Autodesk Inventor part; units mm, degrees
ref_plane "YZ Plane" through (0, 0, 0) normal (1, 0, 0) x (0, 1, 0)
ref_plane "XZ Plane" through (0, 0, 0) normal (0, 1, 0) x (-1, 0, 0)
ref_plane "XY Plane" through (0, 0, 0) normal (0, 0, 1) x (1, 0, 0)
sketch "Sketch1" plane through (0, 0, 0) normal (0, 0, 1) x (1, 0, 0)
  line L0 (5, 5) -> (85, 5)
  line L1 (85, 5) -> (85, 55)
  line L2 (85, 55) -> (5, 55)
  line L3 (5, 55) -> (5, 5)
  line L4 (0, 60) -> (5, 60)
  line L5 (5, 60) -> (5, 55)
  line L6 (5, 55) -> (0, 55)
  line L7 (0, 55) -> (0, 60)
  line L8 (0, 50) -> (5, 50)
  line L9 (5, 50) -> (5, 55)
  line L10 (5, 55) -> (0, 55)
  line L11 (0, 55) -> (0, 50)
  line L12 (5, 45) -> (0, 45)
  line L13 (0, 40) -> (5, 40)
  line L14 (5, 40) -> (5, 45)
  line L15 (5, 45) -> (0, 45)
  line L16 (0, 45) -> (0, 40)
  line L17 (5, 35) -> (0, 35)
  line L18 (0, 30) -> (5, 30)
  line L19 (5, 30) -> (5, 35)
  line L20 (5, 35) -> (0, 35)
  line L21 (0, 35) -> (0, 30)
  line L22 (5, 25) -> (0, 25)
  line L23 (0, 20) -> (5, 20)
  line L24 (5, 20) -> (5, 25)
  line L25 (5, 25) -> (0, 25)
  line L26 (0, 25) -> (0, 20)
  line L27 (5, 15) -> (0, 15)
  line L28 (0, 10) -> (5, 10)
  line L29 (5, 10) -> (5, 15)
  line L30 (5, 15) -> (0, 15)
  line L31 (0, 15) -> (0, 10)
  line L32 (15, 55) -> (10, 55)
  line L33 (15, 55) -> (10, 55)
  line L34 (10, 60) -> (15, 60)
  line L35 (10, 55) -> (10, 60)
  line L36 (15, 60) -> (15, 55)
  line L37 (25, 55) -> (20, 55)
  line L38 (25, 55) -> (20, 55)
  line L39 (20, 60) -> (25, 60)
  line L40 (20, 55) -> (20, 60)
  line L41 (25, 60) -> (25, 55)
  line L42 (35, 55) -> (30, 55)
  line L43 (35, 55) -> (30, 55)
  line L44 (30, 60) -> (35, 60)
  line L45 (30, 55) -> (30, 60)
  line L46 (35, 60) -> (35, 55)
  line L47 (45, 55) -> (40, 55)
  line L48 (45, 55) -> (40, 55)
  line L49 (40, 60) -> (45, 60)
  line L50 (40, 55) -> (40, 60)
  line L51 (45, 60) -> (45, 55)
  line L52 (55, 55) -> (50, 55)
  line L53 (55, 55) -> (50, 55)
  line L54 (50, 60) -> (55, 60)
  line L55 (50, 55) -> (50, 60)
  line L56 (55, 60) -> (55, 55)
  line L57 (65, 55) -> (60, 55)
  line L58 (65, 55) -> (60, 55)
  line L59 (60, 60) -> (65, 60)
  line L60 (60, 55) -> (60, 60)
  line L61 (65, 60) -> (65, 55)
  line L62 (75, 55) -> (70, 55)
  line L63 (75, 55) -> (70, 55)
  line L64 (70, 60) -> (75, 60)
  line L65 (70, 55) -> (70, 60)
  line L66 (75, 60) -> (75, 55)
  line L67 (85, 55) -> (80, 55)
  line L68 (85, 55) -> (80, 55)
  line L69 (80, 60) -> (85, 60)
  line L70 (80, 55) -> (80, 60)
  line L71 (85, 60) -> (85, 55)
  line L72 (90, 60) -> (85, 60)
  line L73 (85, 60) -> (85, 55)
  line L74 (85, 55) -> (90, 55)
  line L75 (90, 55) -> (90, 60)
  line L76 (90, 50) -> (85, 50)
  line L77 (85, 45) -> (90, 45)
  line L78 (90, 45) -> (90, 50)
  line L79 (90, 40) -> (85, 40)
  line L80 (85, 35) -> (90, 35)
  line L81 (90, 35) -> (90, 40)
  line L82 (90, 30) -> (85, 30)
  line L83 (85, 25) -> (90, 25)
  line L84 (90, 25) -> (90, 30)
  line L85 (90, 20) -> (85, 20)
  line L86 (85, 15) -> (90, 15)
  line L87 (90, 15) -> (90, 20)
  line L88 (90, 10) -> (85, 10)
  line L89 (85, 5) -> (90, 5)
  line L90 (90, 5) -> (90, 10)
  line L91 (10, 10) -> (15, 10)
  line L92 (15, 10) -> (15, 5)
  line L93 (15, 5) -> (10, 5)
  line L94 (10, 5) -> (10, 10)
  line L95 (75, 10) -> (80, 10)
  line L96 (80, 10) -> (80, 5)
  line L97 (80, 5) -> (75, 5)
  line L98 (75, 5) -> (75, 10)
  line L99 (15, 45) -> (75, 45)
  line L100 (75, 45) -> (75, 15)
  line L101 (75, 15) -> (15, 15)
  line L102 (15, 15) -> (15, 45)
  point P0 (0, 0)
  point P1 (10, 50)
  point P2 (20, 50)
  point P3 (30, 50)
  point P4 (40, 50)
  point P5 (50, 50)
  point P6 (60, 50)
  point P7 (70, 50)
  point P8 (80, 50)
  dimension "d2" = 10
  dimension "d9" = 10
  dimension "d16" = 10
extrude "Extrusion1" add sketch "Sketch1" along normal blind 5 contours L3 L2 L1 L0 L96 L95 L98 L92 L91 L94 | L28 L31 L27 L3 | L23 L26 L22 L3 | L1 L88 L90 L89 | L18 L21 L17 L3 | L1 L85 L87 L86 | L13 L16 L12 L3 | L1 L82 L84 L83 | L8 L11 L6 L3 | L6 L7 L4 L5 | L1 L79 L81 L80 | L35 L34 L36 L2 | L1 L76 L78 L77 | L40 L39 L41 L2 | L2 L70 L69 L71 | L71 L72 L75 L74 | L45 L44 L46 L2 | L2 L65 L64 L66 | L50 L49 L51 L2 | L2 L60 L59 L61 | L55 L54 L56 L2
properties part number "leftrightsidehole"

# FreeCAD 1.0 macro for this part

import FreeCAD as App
import Part
import Sketcher
from FreeCAD import Vector


def add_polygon(sketch, points):
    """Adds a closed chain of lines whose ends are joined by coincident constraints."""
    first, n = sketch.GeometryCount, len(points)
    for a, b in zip(points, points[1:] + points[:1]):
        sketch.addGeometry(Part.LineSegment(App.Vector(*a, 0), App.Vector(*b, 0)), False)
    for i in range(n):
        sketch.addConstraint(Sketcher.Constraint("Coincident", first + i, 2, first + (i + 1) % n, 1))

doc = App.newDocument("Part")
body = doc.addObject("PartDesign::Body", "Body")

sketch1 = body.newObject("Sketcher::SketchObject", "Sketch")
sketch1.AttachmentSupport = (doc.getObject("XY_Plane"), [""])
sketch1.MapMode = "FlatFace"
add_polygon(sketch1, [(5, 10), (5, 5), (10, 5), (10, 10), (15, 10), (15, 5), (75, 5), (75, 10), (80, 10), (80, 5), (90, 5), (90, 10), (85, 10), (85, 15), (90, 15), (90, 20), (85, 20), (85, 25), (90, 25), (90, 30), (85, 30), (85, 35), (90, 35), (90, 40), (85, 40), (85, 45), (90, 45), (90, 50), (85, 50), (85, 55), (90, 55), (90, 60), (80, 60), (80, 55), (75, 55), (75, 60), (70, 60), (70, 55), (65, 55), (65, 60), (60, 60), (60, 55), (55, 55), (55, 60), (50, 60), (50, 55), (45, 55), (45, 60), (40, 60), (40, 55), (35, 55), (35, 60), (30, 60), (30, 55), (25, 55), (25, 60), (20, 60), (20, 55), (15, 55), (15, 60), (10, 60), (10, 55), (5, 55), (5, 60), (0, 60), (0, 50), (5, 50), (5, 45), (0, 45), (0, 40), (5, 40), (5, 35), (0, 35), (0, 30), (5, 30), (5, 25), (0, 25), (0, 20), (5, 20), (5, 15), (0, 15), (0, 10)])
add_polygon(sketch1, [(15, 15), (15, 45), (75, 45), (75, 15)])
sketch1.addConstraint(Sketcher.Constraint("Vertical", 0))
sketch1.addConstraint(Sketcher.Constraint("Horizontal", 1))
sketch1.addConstraint(Sketcher.Constraint("Vertical", 2))
sketch1.addConstraint(Sketcher.Constraint("Horizontal", 3))
sketch1.addConstraint(Sketcher.Constraint("Vertical", 4))
sketch1.addConstraint(Sketcher.Constraint("Horizontal", 5))
sketch1.addConstraint(Sketcher.Constraint("Vertical", 6))
sketch1.addConstraint(Sketcher.Constraint("Horizontal", 7))
sketch1.addConstraint(Sketcher.Constraint("Vertical", 8))
sketch1.addConstraint(Sketcher.Constraint("Horizontal", 9))
sketch1.addConstraint(Sketcher.Constraint("Vertical", 10))
sketch1.addConstraint(Sketcher.Constraint("Horizontal", 11))
sketch1.addConstraint(Sketcher.Constraint("Vertical", 12))
sketch1.addConstraint(Sketcher.Constraint("Horizontal", 13))
sketch1.addConstraint(Sketcher.Constraint("Vertical", 14))
sketch1.addConstraint(Sketcher.Constraint("Horizontal", 15))
sketch1.addConstraint(Sketcher.Constraint("Vertical", 16))
sketch1.addConstraint(Sketcher.Constraint("Horizontal", 17))
sketch1.addConstraint(Sketcher.Constraint("Vertical", 18))
sketch1.addConstraint(Sketcher.Constraint("Horizontal", 19))
sketch1.addConstraint(Sketcher.Constraint("Vertical", 20))
sketch1.addConstraint(Sketcher.Constraint("Horizontal", 21))
sketch1.addConstraint(Sketcher.Constraint("Vertical", 22))
sketch1.addConstraint(Sketcher.Constraint("Horizontal", 23))
sketch1.addConstraint(Sketcher.Constraint("Vertical", 24))
sketch1.addConstraint(Sketcher.Constraint("Horizontal", 25))
sketch1.addConstraint(Sketcher.Constraint("Vertical", 26))
sketch1.addConstraint(Sketcher.Constraint("Horizontal", 27))
sketch1.addConstraint(Sketcher.Constraint("Vertical", 28))
sketch1.addConstraint(Sketcher.Constraint("Horizontal", 29))
sketch1.addConstraint(Sketcher.Constraint("Vertical", 30))
sketch1.addConstraint(Sketcher.Constraint("Horizontal", 31))
sketch1.addConstraint(Sketcher.Constraint("Vertical", 32))
sketch1.addConstraint(Sketcher.Constraint("Horizontal", 33))
sketch1.addConstraint(Sketcher.Constraint("Vertical", 34))
sketch1.addConstraint(Sketcher.Constraint("Horizontal", 35))
sketch1.addConstraint(Sketcher.Constraint("Vertical", 36))
sketch1.addConstraint(Sketcher.Constraint("Horizontal", 37))
sketch1.addConstraint(Sketcher.Constraint("Vertical", 38))
sketch1.addConstraint(Sketcher.Constraint("Horizontal", 39))
sketch1.addConstraint(Sketcher.Constraint("Vertical", 40))
sketch1.addConstraint(Sketcher.Constraint("Horizontal", 41))
sketch1.addConstraint(Sketcher.Constraint("Vertical", 42))
sketch1.addConstraint(Sketcher.Constraint("Horizontal", 43))
sketch1.addConstraint(Sketcher.Constraint("Vertical", 44))
sketch1.addConstraint(Sketcher.Constraint("Horizontal", 45))
sketch1.addConstraint(Sketcher.Constraint("Vertical", 46))
sketch1.addConstraint(Sketcher.Constraint("Horizontal", 47))
sketch1.addConstraint(Sketcher.Constraint("Vertical", 48))
sketch1.addConstraint(Sketcher.Constraint("Horizontal", 49))
sketch1.addConstraint(Sketcher.Constraint("Vertical", 50))
sketch1.addConstraint(Sketcher.Constraint("Horizontal", 51))
sketch1.addConstraint(Sketcher.Constraint("Vertical", 52))
sketch1.addConstraint(Sketcher.Constraint("Horizontal", 53))
sketch1.addConstraint(Sketcher.Constraint("Vertical", 54))
sketch1.addConstraint(Sketcher.Constraint("Horizontal", 55))
sketch1.addConstraint(Sketcher.Constraint("Vertical", 56))
sketch1.addConstraint(Sketcher.Constraint("Horizontal", 57))
sketch1.addConstraint(Sketcher.Constraint("Vertical", 58))
sketch1.addConstraint(Sketcher.Constraint("Horizontal", 59))
sketch1.addConstraint(Sketcher.Constraint("Vertical", 60))
sketch1.addConstraint(Sketcher.Constraint("Horizontal", 61))
sketch1.addConstraint(Sketcher.Constraint("Vertical", 62))
sketch1.addConstraint(Sketcher.Constraint("Horizontal", 63))
sketch1.addConstraint(Sketcher.Constraint("Vertical", 64))
sketch1.addConstraint(Sketcher.Constraint("Horizontal", 65))
sketch1.addConstraint(Sketcher.Constraint("Vertical", 66))
sketch1.addConstraint(Sketcher.Constraint("Horizontal", 67))
sketch1.addConstraint(Sketcher.Constraint("Vertical", 68))
sketch1.addConstraint(Sketcher.Constraint("Horizontal", 69))
sketch1.addConstraint(Sketcher.Constraint("Vertical", 70))
sketch1.addConstraint(Sketcher.Constraint("Horizontal", 71))
sketch1.addConstraint(Sketcher.Constraint("Vertical", 72))
sketch1.addConstraint(Sketcher.Constraint("Horizontal", 73))
sketch1.addConstraint(Sketcher.Constraint("Vertical", 74))
sketch1.addConstraint(Sketcher.Constraint("Horizontal", 75))
sketch1.addConstraint(Sketcher.Constraint("Vertical", 76))
sketch1.addConstraint(Sketcher.Constraint("Horizontal", 77))
sketch1.addConstraint(Sketcher.Constraint("Vertical", 78))
sketch1.addConstraint(Sketcher.Constraint("Horizontal", 79))
sketch1.addConstraint(Sketcher.Constraint("Vertical", 80))
sketch1.addConstraint(Sketcher.Constraint("Horizontal", 81))
sketch1.addConstraint(Sketcher.Constraint("Vertical", 82))
sketch1.addConstraint(Sketcher.Constraint("Horizontal", 83))
sketch1.addConstraint(Sketcher.Constraint("Vertical", 84))
sketch1.addConstraint(Sketcher.Constraint("Horizontal", 85))
sketch1.addConstraint(Sketcher.Constraint("PointOnObject", 63, 2, -2))
sketch1.addConstraint(Sketcher.Constraint("PointOnObject", 67, 2, -2))
sketch1.addConstraint(Sketcher.Constraint("PointOnObject", 71, 2, -2))
sketch1.addConstraint(Sketcher.Constraint("PointOnObject", 75, 2, -2))
sketch1.addConstraint(Sketcher.Constraint("PointOnObject", 79, 2, -2))
sketch1.addConstraint(Sketcher.Constraint("Horizontal", 1, 2, 4, 2))
sketch1.addConstraint(Sketcher.Constraint("Horizontal", 3, 2, 6, 2))
sketch1.addConstraint(Sketcher.Constraint("Horizontal", 5, 2, 8, 2))
sketch1.addConstraint(Sketcher.Constraint("Horizontal", 7, 2, 10, 2))
sketch1.addConstraint(Sketcher.Constraint("Horizontal", 29, 2, 32, 2))
sketch1.addConstraint(Sketcher.Constraint("Horizontal", 31, 2, 34, 2))
sketch1.addConstraint(Sketcher.Constraint("Horizontal", 33, 2, 36, 2))
sketch1.addConstraint(Sketcher.Constraint("Horizontal", 35, 2, 38, 2))
sketch1.addConstraint(Sketcher.Constraint("Horizontal", 37, 2, 40, 2))
sketch1.addConstraint(Sketcher.Constraint("Horizontal", 39, 2, 42, 2))
sketch1.addConstraint(Sketcher.Constraint("Horizontal", 41, 2, 44, 2))
sketch1.addConstraint(Sketcher.Constraint("Horizontal", 43, 2, 46, 2))
sketch1.addConstraint(Sketcher.Constraint("Horizontal", 45, 2, 48, 2))
sketch1.addConstraint(Sketcher.Constraint("Horizontal", 47, 2, 50, 2))
sketch1.addConstraint(Sketcher.Constraint("Horizontal", 49, 2, 52, 2))
sketch1.addConstraint(Sketcher.Constraint("Horizontal", 51, 2, 54, 2))
sketch1.addConstraint(Sketcher.Constraint("Horizontal", 53, 2, 56, 2))
sketch1.addConstraint(Sketcher.Constraint("Horizontal", 55, 2, 58, 2))
sketch1.addConstraint(Sketcher.Constraint("Horizontal", 57, 2, 60, 2))
sketch1.addConstraint(Sketcher.Constraint("Horizontal", 59, 2, 62, 2))
sketch1.addConstraint(Sketcher.Constraint("Horizontal", 27, 2, 64, 2))
sketch1.addConstraint(Sketcher.Constraint("Horizontal", 25, 2, 66, 2))
sketch1.addConstraint(Sketcher.Constraint("Horizontal", 23, 2, 68, 2))
sketch1.addConstraint(Sketcher.Constraint("Horizontal", 21, 2, 70, 2))
sketch1.addConstraint(Sketcher.Constraint("Horizontal", 19, 2, 72, 2))
sketch1.addConstraint(Sketcher.Constraint("Horizontal", 17, 2, 74, 2))
sketch1.addConstraint(Sketcher.Constraint("Horizontal", 15, 2, 76, 2))
sketch1.addConstraint(Sketcher.Constraint("Horizontal", 13, 2, 78, 2))
sketch1.addConstraint(Sketcher.Constraint("Horizontal", 11, 2, 80, 2))
sketch1.addConstraint(Sketcher.Constraint("Horizontal", 67, 2, 82, 2))
sketch1.addConstraint(Sketcher.Constraint("Horizontal", 79, 2, 84, 2))
sketch1.addConstraint(Sketcher.Constraint("Vertical", 10, 2, 13, 2))
sketch1.addConstraint(Sketcher.Constraint("Vertical", 12, 2, 15, 2))
sketch1.addConstraint(Sketcher.Constraint("Vertical", 14, 2, 17, 2))
sketch1.addConstraint(Sketcher.Constraint("Vertical", 16, 2, 19, 2))
sketch1.addConstraint(Sketcher.Constraint("Vertical", 18, 2, 21, 2))
sketch1.addConstraint(Sketcher.Constraint("Vertical", 20, 2, 23, 2))
sketch1.addConstraint(Sketcher.Constraint("Vertical", 22, 2, 25, 2))
sketch1.addConstraint(Sketcher.Constraint("Vertical", 24, 2, 27, 2))
sketch1.addConstraint(Sketcher.Constraint("Vertical", 26, 2, 29, 2))
sketch1.addConstraint(Sketcher.Constraint("Vertical", 8, 2, 31, 2))
sketch1.addConstraint(Sketcher.Constraint("Vertical", 6, 2, 33, 2))
sketch1.addConstraint(Sketcher.Constraint("Vertical", 4, 2, 57, 2))
sketch1.addConstraint(Sketcher.Constraint("Vertical", 2, 2, 59, 2))
sketch1.addConstraint(Sketcher.Constraint("Vertical", 0, 2, 61, 2))
sketch1.addConstraint(Sketcher.Constraint("Vertical", 62, 2, 65, 2))
sketch1.addConstraint(Sketcher.Constraint("Vertical", 66, 2, 69, 2))
sketch1.addConstraint(Sketcher.Constraint("Vertical", 70, 2, 73, 2))
sketch1.addConstraint(Sketcher.Constraint("Vertical", 74, 2, 77, 2))
sketch1.addConstraint(Sketcher.Constraint("Vertical", 58, 2, 82, 2))
sketch1.addConstraint(Sketcher.Constraint("Vertical", 34, 2, 83, 2))
sketch1.addConstraint(Sketcher.Constraint("Equal", 1, 3))
sketch1.addConstraint(Sketcher.Constraint("Equal", 3, 7))
sketch1.addConstraint(Sketcher.Constraint("Equal", 7, 11))
sketch1.addConstraint(Sketcher.Constraint("Equal", 33, 35))
sketch1.addConstraint(Sketcher.Constraint("Equal", 35, 37))
sketch1.addConstraint(Sketcher.Constraint("Equal", 37, 39))
sketch1.addConstraint(Sketcher.Constraint("Equal", 39, 41))
sketch1.addConstraint(Sketcher.Constraint("Equal", 41, 43))
sketch1.addConstraint(Sketcher.Constraint("Equal", 43, 45))
sketch1.addConstraint(Sketcher.Constraint("Equal", 45, 47))
sketch1.addConstraint(Sketcher.Constraint("Equal", 47, 49))
sketch1.addConstraint(Sketcher.Constraint("Equal", 49, 51))
sketch1.addConstraint(Sketcher.Constraint("Equal", 51, 53))
sketch1.addConstraint(Sketcher.Constraint("Equal", 53, 55))
sketch1.addConstraint(Sketcher.Constraint("Equal", 55, 57))
sketch1.addConstraint(Sketcher.Constraint("Equal", 61, 63))
sketch1.addConstraint(Sketcher.Constraint("Equal", 81, 0))
sketch1.addConstraint(Sketcher.Constraint("Equal", 10, 12))
sketch1.addConstraint(Sketcher.Constraint("Equal", 12, 14))
sketch1.addConstraint(Sketcher.Constraint("Equal", 14, 16))
sketch1.addConstraint(Sketcher.Constraint("Equal", 16, 18))
sketch1.addConstraint(Sketcher.Constraint("Equal", 18, 20))
sketch1.addConstraint(Sketcher.Constraint("Equal", 20, 22))
sketch1.addConstraint(Sketcher.Constraint("Equal", 22, 24))
sketch1.addConstraint(Sketcher.Constraint("Equal", 24, 26))
sketch1.addConstraint(Sketcher.Constraint("Equal", 26, 28))
sketch1.addConstraint(Sketcher.Constraint("Equal", 28, 30))
sketch1.addConstraint(Sketcher.Constraint("Equal", 31, 64))
sketch1.addConstraint(Sketcher.Constraint("DistanceX", 9, 1, 9, 2, 10.0))
sketch1.addConstraint(Sketcher.Constraint("DistanceY", -1, 1, 2, 2, 10.0))
pad1 = body.newObject("PartDesign::Pad", "Pad")
pad1.Profile = sketch1
pad1.Length = 5

doc.recompute()
